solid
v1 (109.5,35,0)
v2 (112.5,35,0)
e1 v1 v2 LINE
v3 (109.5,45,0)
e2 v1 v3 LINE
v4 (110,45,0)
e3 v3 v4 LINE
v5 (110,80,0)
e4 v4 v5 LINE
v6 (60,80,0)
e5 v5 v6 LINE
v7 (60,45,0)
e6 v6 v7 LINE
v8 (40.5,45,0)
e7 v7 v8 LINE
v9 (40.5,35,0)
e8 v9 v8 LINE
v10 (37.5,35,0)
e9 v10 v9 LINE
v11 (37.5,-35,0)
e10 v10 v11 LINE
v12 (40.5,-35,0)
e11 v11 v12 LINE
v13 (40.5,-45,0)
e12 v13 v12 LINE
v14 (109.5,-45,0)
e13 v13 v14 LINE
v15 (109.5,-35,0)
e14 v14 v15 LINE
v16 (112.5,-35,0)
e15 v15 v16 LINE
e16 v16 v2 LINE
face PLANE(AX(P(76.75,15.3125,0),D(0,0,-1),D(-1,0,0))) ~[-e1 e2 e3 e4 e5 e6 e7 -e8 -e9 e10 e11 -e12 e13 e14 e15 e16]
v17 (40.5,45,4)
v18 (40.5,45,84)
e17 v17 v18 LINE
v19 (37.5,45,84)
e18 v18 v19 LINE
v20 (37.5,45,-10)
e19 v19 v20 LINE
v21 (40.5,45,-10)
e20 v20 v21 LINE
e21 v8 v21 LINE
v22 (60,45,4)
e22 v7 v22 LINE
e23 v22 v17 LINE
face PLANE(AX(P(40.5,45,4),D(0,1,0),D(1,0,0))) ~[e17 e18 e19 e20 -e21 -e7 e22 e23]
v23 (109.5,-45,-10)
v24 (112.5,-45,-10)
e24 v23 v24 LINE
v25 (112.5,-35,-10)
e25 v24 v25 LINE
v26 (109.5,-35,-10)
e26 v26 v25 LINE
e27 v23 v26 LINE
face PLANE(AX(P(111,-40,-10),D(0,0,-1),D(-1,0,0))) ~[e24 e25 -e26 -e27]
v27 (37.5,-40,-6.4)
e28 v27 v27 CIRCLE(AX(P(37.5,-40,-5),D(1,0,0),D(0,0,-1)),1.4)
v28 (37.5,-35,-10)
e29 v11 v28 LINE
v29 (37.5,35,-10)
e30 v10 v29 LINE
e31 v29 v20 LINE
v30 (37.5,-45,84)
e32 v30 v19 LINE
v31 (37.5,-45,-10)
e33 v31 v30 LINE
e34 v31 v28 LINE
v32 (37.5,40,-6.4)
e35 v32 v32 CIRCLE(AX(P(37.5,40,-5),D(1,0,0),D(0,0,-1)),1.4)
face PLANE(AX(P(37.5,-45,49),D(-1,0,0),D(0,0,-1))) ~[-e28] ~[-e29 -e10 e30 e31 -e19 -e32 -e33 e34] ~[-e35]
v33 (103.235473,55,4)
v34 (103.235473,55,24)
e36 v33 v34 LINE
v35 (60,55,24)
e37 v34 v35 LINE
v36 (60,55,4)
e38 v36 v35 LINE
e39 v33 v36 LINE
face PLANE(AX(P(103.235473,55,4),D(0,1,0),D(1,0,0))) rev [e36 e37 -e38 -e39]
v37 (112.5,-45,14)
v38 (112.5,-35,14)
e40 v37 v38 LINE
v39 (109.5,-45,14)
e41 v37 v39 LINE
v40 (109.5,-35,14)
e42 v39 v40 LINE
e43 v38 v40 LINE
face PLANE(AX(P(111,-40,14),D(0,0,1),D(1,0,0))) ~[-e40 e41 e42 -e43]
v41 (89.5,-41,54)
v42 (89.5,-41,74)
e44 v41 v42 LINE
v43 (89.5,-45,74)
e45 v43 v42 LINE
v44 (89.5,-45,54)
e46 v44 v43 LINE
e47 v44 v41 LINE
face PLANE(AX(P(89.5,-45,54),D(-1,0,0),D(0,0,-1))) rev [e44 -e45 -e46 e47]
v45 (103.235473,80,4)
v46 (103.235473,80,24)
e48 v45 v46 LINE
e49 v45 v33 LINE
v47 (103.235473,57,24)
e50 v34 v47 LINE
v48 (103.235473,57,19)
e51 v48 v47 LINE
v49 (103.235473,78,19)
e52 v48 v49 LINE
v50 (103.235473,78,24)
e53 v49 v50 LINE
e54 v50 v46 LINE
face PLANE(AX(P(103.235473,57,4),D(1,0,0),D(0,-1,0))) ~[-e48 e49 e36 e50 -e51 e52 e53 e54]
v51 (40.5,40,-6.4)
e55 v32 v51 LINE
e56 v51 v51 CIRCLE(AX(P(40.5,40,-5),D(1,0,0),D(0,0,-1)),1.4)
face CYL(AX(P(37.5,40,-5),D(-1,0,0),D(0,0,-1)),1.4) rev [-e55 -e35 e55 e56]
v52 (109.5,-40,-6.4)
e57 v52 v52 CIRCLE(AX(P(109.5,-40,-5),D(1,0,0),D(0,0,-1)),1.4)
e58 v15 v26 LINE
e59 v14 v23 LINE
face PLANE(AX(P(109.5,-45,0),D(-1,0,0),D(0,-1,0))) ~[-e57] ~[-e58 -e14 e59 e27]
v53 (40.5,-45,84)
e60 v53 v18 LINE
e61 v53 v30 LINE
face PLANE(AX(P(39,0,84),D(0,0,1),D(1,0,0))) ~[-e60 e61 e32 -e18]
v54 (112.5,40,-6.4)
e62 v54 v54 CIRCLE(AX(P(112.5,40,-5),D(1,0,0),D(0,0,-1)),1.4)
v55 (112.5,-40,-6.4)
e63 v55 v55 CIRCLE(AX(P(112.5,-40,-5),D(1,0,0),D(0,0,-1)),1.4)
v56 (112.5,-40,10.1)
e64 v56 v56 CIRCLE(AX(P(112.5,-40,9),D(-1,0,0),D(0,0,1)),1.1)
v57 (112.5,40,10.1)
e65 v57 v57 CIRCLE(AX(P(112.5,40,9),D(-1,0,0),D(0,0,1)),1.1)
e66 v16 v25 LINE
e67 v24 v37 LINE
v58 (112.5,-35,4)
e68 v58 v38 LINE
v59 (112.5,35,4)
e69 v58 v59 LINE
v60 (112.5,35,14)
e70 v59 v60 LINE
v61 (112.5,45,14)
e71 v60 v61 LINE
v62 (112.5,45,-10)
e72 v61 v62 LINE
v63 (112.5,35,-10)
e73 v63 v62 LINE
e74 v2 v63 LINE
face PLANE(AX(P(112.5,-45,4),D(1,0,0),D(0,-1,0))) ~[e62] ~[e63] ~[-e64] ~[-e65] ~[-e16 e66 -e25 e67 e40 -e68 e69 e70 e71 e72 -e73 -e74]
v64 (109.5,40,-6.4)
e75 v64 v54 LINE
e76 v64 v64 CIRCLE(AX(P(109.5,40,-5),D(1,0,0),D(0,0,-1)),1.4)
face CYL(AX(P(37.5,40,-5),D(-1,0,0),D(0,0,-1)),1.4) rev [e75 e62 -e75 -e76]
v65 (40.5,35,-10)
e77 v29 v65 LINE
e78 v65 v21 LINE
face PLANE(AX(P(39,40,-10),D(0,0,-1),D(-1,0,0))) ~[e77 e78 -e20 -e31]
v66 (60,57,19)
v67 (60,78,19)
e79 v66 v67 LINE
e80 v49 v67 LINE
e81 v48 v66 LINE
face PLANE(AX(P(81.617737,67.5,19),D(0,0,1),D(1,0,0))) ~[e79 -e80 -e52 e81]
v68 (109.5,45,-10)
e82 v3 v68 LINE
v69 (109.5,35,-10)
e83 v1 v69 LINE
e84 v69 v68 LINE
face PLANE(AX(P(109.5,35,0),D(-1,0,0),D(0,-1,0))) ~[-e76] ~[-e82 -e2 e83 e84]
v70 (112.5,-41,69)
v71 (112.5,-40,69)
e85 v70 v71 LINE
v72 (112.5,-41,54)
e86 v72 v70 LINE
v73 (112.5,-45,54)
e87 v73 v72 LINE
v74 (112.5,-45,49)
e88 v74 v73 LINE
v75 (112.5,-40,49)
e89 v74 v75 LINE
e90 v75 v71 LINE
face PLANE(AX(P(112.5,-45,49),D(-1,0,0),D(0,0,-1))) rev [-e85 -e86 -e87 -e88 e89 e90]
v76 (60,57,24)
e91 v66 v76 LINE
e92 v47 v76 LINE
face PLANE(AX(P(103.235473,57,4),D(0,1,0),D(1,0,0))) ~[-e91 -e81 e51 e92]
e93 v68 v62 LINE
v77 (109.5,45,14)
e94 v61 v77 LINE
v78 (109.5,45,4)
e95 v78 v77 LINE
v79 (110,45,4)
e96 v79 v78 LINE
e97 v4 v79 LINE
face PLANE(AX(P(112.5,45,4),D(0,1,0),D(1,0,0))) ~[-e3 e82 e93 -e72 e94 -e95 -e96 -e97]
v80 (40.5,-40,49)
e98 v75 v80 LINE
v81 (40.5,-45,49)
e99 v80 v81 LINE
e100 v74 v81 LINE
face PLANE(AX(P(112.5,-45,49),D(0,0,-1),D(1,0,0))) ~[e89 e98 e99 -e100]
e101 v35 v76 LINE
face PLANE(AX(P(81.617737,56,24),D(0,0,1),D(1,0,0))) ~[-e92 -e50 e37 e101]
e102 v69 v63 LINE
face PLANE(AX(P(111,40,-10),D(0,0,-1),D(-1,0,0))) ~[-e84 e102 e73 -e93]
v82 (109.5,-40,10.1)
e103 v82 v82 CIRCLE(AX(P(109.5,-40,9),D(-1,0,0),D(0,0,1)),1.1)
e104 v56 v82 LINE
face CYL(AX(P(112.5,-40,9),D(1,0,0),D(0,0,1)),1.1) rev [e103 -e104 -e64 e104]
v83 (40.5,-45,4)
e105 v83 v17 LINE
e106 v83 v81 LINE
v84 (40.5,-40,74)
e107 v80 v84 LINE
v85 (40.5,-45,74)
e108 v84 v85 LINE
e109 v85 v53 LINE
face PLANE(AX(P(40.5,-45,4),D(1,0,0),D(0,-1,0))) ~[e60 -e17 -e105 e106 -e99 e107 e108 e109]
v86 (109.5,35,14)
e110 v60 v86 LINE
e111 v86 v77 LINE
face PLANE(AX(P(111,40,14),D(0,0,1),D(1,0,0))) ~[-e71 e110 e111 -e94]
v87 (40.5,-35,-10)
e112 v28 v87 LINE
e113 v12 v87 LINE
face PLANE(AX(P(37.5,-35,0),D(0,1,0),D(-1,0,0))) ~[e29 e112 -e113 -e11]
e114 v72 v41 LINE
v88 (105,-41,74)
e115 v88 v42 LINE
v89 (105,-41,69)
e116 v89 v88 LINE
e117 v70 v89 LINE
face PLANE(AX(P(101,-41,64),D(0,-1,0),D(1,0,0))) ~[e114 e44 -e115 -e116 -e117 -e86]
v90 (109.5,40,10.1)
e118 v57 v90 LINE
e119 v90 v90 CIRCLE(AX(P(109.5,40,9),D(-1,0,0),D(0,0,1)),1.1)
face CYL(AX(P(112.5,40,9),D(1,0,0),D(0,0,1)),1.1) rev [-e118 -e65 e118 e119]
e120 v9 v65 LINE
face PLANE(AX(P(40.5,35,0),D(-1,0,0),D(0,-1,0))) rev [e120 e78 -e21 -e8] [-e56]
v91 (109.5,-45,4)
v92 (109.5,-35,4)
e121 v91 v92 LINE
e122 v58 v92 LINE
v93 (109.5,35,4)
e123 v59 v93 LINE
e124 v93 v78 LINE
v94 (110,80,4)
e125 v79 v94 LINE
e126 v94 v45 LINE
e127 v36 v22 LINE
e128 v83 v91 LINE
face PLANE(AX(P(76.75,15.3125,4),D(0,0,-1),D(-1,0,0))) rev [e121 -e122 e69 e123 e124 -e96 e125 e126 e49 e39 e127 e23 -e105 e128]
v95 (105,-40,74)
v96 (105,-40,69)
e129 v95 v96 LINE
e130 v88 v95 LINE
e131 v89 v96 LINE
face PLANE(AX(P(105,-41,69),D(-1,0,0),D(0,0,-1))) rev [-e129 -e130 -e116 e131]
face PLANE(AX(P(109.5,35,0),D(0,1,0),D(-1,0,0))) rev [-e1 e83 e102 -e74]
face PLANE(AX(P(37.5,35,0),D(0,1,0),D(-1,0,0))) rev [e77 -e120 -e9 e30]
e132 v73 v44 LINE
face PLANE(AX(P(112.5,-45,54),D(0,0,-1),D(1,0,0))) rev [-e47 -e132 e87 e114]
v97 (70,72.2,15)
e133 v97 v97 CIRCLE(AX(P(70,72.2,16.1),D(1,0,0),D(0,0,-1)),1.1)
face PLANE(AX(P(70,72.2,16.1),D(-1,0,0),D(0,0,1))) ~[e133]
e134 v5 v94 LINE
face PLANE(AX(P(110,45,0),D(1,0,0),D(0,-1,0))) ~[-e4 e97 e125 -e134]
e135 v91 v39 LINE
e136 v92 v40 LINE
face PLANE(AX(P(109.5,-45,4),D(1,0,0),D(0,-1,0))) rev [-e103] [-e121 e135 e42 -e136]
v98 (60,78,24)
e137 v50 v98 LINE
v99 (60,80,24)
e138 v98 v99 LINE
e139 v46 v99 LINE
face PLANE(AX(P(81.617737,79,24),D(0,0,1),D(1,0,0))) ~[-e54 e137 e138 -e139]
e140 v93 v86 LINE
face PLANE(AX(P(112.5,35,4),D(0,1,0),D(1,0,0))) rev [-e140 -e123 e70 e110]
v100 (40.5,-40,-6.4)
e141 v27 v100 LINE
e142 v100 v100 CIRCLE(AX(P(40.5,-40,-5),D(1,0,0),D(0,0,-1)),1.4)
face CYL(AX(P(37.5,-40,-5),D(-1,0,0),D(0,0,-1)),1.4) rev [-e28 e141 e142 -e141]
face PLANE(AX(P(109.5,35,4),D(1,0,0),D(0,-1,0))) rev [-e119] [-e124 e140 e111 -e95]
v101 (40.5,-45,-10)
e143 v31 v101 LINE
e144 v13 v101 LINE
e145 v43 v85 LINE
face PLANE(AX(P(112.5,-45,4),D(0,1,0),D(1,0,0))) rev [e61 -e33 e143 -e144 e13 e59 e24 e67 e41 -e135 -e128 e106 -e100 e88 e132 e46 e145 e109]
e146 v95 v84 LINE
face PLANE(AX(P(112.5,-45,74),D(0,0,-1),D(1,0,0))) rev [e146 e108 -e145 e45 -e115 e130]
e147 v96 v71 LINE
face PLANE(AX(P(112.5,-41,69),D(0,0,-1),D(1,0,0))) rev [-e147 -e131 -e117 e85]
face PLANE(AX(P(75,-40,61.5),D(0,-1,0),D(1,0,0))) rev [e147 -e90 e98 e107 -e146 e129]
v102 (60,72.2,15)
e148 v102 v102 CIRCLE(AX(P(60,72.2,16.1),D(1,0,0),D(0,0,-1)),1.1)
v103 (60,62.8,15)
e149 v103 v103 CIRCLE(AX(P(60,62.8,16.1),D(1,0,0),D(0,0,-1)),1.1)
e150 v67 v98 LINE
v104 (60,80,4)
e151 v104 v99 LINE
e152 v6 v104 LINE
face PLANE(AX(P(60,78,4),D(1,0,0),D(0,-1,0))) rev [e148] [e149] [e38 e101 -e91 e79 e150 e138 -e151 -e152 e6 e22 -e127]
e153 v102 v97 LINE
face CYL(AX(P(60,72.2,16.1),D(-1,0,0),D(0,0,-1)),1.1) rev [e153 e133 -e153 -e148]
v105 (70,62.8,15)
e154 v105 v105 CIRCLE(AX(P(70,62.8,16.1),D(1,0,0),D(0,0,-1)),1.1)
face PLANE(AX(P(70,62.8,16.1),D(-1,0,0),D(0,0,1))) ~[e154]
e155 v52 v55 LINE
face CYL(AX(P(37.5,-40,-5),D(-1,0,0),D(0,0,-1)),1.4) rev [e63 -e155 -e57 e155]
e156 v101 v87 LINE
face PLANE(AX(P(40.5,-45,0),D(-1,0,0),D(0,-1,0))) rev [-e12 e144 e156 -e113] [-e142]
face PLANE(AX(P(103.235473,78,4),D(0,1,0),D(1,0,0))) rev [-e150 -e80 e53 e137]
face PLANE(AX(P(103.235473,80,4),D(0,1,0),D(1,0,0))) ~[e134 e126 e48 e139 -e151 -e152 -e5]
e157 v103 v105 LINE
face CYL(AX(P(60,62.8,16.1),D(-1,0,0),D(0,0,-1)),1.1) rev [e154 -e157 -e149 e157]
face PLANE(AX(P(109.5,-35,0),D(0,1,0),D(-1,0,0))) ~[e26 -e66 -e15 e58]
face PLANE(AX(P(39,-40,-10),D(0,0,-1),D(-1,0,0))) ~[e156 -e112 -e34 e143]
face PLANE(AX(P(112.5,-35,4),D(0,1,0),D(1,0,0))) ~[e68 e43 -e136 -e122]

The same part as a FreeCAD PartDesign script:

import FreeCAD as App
import Part
import Sketcher
Q = App.Units.Quantity

doc = App.newDocument("Part")
body = doc.addObject("PartDesign::Body", "Body")

# Sketch on XY plane
sketch1 = doc.addObject("Sketcher::SketchObject", "Sketch")
body.addObject(sketch1)
sketch1.AttachmentSupport = (doc.XY_Plane, [""])
sketch1.MapMode = "FlatFace"
sketch1.addGeometry([
    Part.LineSegment(App.Vector(-35, 45, 0), App.Vector(-37.5, 45, 0)),  # 0
    Part.LineSegment(App.Vector(-37.5, 45, 0), App.Vector(-37.5, -45, 0)),  # 1
    Part.LineSegment(App.Vector(-37.5, -45, 0), App.Vector(37.5, -45, 0)),  # 2
    Part.LineSegment(App.Vector(37.5, -45, 0), App.Vector(37.5, 45, 0)),  # 3
    Part.LineSegment(App.Vector(37.5, 45, 0), App.Vector(15, 45, 0)),  # 4
    Part.LineSegment(App.Vector(15, 45, 0), App.Vector(15, 80, 0)),  # 5
    Part.LineSegment(App.Vector(15, 80, 0), App.Vector(-35, 80, 0)),  # 6
    Part.LineSegment(App.Vector(-35, 80, 0), App.Vector(-35, 45, 0)),  # 7
], False)
sketch1.addConstraint([
    Sketcher.Constraint("Coincident", 0, 2, 1, 1),
    Sketcher.Constraint("Coincident", 1, 2, 2, 1),
    Sketcher.Constraint("Coincident", 2, 2, 3, 1),
    Sketcher.Constraint("Coincident", 3, 2, 4, 1),
    Sketcher.Constraint("Coincident", 4, 2, 5, 1),
    Sketcher.Constraint("Coincident", 5, 2, 6, 1),
    Sketcher.Constraint("Coincident", 6, 2, 7, 1),
    Sketcher.Constraint("Coincident", 7, 2, 0, 1),
    Sketcher.Constraint("Horizontal", 0),
    Sketcher.Constraint("Vertical", 1),
    Sketcher.Constraint("Horizontal", 2),
    Sketcher.Constraint("Vertical", 3),
    Sketcher.Constraint("Horizontal", 4),
    Sketcher.Constraint("Vertical", 5),
    Sketcher.Constraint("Horizontal", 6),
    Sketcher.Constraint("Vertical", 7),
    Sketcher.Constraint("Symmetric", 0, 2, 2, 2, -1, 1),
    Sketcher.Constraint("Horizontal", 0, 2, 3, 2),
    Sketcher.Constraint("DistanceX", 2, 1, 2, 2, Q("75 mm")),
    Sketcher.Constraint("DistanceX", 6, 2, 6, 1, Q("50 mm")),
    Sketcher.Constraint("DistanceY", 1, 2, 1, 1, Q("90 mm")),
    Sketcher.Constraint("DistanceY", 5, 1, 5, 2, Q("35 mm")),
    Sketcher.Constraint("DistanceX", 0, 2, 0, 1, Q("2.5 mm")),
])
pad1 = doc.addObject("PartDesign::Pad", "Pad")
body.addObject(pad1)
pad1.Profile = sketch1
pad1.Length = 4

# Sketch on XY plane
sketch2 = doc.addObject("Sketcher::SketchObject", "Sketch001")
body.addObject(sketch2)
sketch2.AttachmentSupport = (doc.XY_Plane, [""])
sketch2.MapMode = "FlatFace"
sketch2.AttachmentOffset = App.Placement(App.Vector(0, 0, 4), App.Rotation())
sketch2.addGeometry([
    Part.LineSegment(App.Vector(-28.235473, 57, 0), App.Vector(-28.235473, 55, 0)),  # 0
    Part.LineSegment(App.Vector(-28.235473, 55, 0), App.Vector(15, 55, 0)),  # 1
    Part.LineSegment(App.Vector(15, 55, 0), App.Vector(15, 57, 0)),  # 2
    Part.LineSegment(App.Vector(15, 57, 0), App.Vector(-28.235473, 57, 0)),  # 3
    Part.LineSegment(App.Vector(-28.235473, 80, 0), App.Vector(-28.235473, 78, 0)),  # 4
    Part.LineSegment(App.Vector(-28.235473, 78, 0), App.Vector(15, 78, 0)),  # 5
    Part.LineSegment(App.Vector(15, 78, 0), App.Vector(15, 80, 0)),  # 6
    Part.LineSegment(App.Vector(15, 80, 0), App.Vector(-28.235473, 80, 0)),  # 7
], False)
sketch2.addConstraint([
    Sketcher.Constraint("Coincident", 0, 2, 1, 1),
    Sketcher.Constraint("Coincident", 1, 2, 2, 1),
    Sketcher.Constraint("Coincident", 2, 2, 3, 1),
    Sketcher.Constraint("Coincident", 3, 2, 0, 1),
    Sketcher.Constraint("Coincident", 4, 2, 5, 1),
    Sketcher.Constraint("Coincident", 5, 2, 6, 1),
    Sketcher.Constraint("Coincident", 6, 2, 7, 1),
    Sketcher.Constraint("Coincident", 7, 2, 4, 1),
    Sketcher.Constraint("Vertical", 0),
    Sketcher.Constraint("Horizontal", 1),
    Sketcher.Constraint("Vertical", 2),
    Sketcher.Constraint("Horizontal", 3),
    Sketcher.Constraint("Vertical", 4),
    Sketcher.Constraint("Horizontal", 5),
    Sketcher.Constraint("Vertical", 6),
    Sketcher.Constraint("Horizontal", 7),
    Sketcher.Constraint("Vertical", 3, 2, 4, 2),
    Sketcher.Constraint("Vertical", 2, 2, 5, 2),
    Sketcher.Constraint("Equal", 2, 4),
    Sketcher.Constraint("DistanceY", 0, 2, 0, 1, Q("2 mm")),
    Sketcher.Constraint("DistanceY", -1, 1, 0, 2, Q("55 mm")),
    Sketcher.Constraint("DistanceX", -1, 1, 1, 2, Q("15 mm")),
    Sketcher.Constraint("DistanceY", -1, 1, 4, 2, Q("78 mm")),
    Sketcher.Constraint("DistanceX", 1, 1, 1, 2, Q("43.235473 mm")),
])
pad2 = doc.addObject("PartDesign::Pad", "Pad001")
body.addObject(pad2)
pad2.Profile = sketch2
pad2.Length = 20

# Sketch on XY plane
sketch3 = doc.addObject("Sketcher::SketchObject", "Sketch002")
body.addObject(sketch3)
sketch3.AttachmentSupport = (doc.XY_Plane, [""])
sketch3.MapMode = "FlatFace"
sketch3.AttachmentOffset = App.Placement(App.Vector(0, 0, 4), App.Rotation())
sketch3.addGeometry([
    Part.LineSegment(App.Vector(-28.235473, 78, 0), App.Vector(-28.235473, 57, 0)),
    Part.LineSegment(App.Vector(-28.235473, 57, 0), App.Vector(15, 57, 0)),
    Part.LineSegment(App.Vector(15, 57, 0), App.Vector(15, 78, 0)),
    Part.LineSegment(App.Vector(15, 78, 0), App.Vector(-28.235473, 78, 0)),
], False)
sketch3.addConstraint([
    Sketcher.Constraint("Coincident", 0, 2, 1, 1),
    Sketcher.Constraint("Coincident", 1, 2, 2, 1),
    Sketcher.Constraint("Coincident", 2, 2, 3, 1),
    Sketcher.Constraint("Coincident", 3, 2, 0, 1),
    Sketcher.Constraint("Vertical", 0),
    Sketcher.Constraint("Horizontal", 1),
    Sketcher.Constraint("Vertical", 2),
    Sketcher.Constraint("Horizontal", 3),
    Sketcher.Constraint("DistanceY", 0, 2, 0, 1, Q("21 mm")),
    Sketcher.Constraint("DistanceY", -1, 1, 0, 2, Q("57 mm")),
    Sketcher.Constraint("DistanceX", -1, 1, 1, 2, Q("15 mm")),
    Sketcher.Constraint("DistanceX", 1, 1, 1, 2, Q("43.235473 mm")),
])
pad3 = doc.addObject("PartDesign::Pad", "Pad002")
body.addObject(pad3)
pad3.Profile = sketch3
pad3.Length = 15

# Sketch on XY plane
sketch4 = doc.addObject("Sketcher::SketchObject", "Sketch003")
body.addObject(sketch4)
sketch4.AttachmentSupport = (doc.XY_Plane, [""])
sketch4.MapMode = "FlatFace"
sketch4.addGeometry([
    Part.LineSegment(App.Vector(37.5, 45, 0), App.Vector(37.5, 35, 0)),  # 0
    Part.LineSegment(App.Vector(37.5, 35, 0), App.Vector(34.5, 35, 0)),  # 1
    Part.LineSegment(App.Vector(34.5, 35, 0), App.Vector(34.5, 45, 0)),  # 2
    Part.LineSegment(App.Vector(34.5, 45, 0), App.Vector(37.5, 45, 0)),  # 3
    Part.LineSegment(App.Vector(-34.5, 45, 0), App.Vector(-34.5, 35, 0)),  # 4
    Part.LineSegment(App.Vector(-34.5, 35, 0), App.Vector(-37.5, 35, 0)),  # 5
    Part.LineSegment(App.Vector(-37.5, 35, 0), App.Vector(-37.5, 45, 0)),  # 6
    Part.LineSegment(App.Vector(-37.5, 45, 0), App.Vector(-34.5, 45, 0)),  # 7
    Part.LineSegment(App.Vector(-34.5, -35, 0), App.Vector(-34.5, -45, 0)),  # 8
    Part.LineSegment(App.Vector(-34.5, -45, 0), App.Vector(-37.5, -45, 0)),  # 9
    Part.LineSegment(App.Vector(-37.5, -45, 0), App.Vector(-37.5, -35, 0)),  # 10
    Part.LineSegment(App.Vector(-37.5, -35, 0), App.Vector(-34.5, -35, 0)),  # 11
    Part.LineSegment(App.Vector(37.5, -35, 0), App.Vector(37.5, -45, 0)),  # 12
    Part.LineSegment(App.Vector(37.5, -45, 0), App.Vector(34.5, -45, 0)),  # 13
    Part.LineSegment(App.Vector(34.5, -45, 0), App.Vector(34.5, -35, 0)),  # 14
    Part.LineSegment(App.Vector(34.5, -35, 0), App.Vector(37.5, -35, 0)),  # 15
], False)
sketch4.addConstraint([
    Sketcher.Constraint("Coincident", 0, 2, 1, 1),
    Sketcher.Constraint("Coincident", 1, 2, 2, 1),
    Sketcher.Constraint("Coincident", 2, 2, 3, 1),
    Sketcher.Constraint("Coincident", 3, 2, 0, 1),
    Sketcher.Constraint("Coincident", 4, 2, 5, 1),
    Sketcher.Constraint("Coincident", 5, 2, 6, 1),
    Sketcher.Constraint("Coincident", 6, 2, 7, 1),
    Sketcher.Constraint("Coincident", 7, 2, 4, 1),
    Sketcher.Constraint("Coincident", 8, 2, 9, 1),
    Sketcher.Constraint("Coincident", 9, 2, 10, 1),
    Sketcher.Constraint("Coincident", 10, 2, 11, 1),
    Sketcher.Constraint("Coincident", 11, 2, 8, 1),
    Sketcher.Constraint("Coincident", 12, 2, 13, 1),
    Sketcher.Constraint("Coincident", 13, 2, 14, 1),
    Sketcher.Constraint("Coincident", 14, 2, 15, 1),
    Sketcher.Constraint("Coincident", 15, 2, 12, 1),
    Sketcher.Constraint("Vertical", 0),
    Sketcher.Constraint("Horizontal", 1),
    Sketcher.Constraint("Vertical", 2),
    Sketcher.Constraint("Horizontal", 3),
    Sketcher.Constraint("Vertical", 4),
    Sketcher.Constraint("Horizontal", 5),
    Sketcher.Constraint("Vertical", 6),
    Sketcher.Constraint("Horizontal", 7),
    Sketcher.Constraint("Vertical", 8),
    Sketcher.Constraint("Horizontal", 9),
    Sketcher.Constraint("Vertical", 10),
    Sketcher.Constraint("Horizontal", 11),
    Sketcher.Constraint("Vertical", 12),
    Sketcher.Constraint("Horizontal", 13),
    Sketcher.Constraint("Vertical", 14),
    Sketcher.Constraint("Horizontal", 15),
    Sketcher.Constraint("Symmetric", 2, 2, 8, 2, -1, 1),
    Sketcher.Constraint("Symmetric", 0, 2, 10, 2, -1, 1),
    Sketcher.Constraint("Symmetric", 6, 2, 12, 2, -1, 1),
    Sketcher.Constraint("Symmetric", 4, 2, 14, 2, -1, 1),
    Sketcher.Constraint("Symmetric", 1, 2, 4, 2, -2),
    Sketcher.Constraint("Symmetric", 3, 2, 6, 2, -2),
    Sketcher.Constraint("DistanceX", 1, 2, 1, 1, Q("3 mm")),
    Sketcher.Constraint("DistanceY", 0, 2, 0, 1, Q("10 mm")),
    Sketcher.Constraint("DistanceY", -1, 1, 0, 2, Q("35 mm")),
    Sketcher.Constraint("DistanceX", 4, 2, 1, 2, Q("69 mm")),
])
pad4 = doc.addObject("PartDesign::Pad", "Pad003")
body.addObject(pad4)
pad4.Profile = sketch4
pad4.Length = 10
pad4.Reversed = True

# Sketch on YZ plane
sketch5 = doc.addObject("Sketcher::SketchObject", "Sketch004")
body.addObject(sketch5)
sketch5.AttachmentSupport = (doc.YZ_Plane, [""])
sketch5.MapMode = "FlatFace"
sketch5.AttachmentOffset = App.Placement(App.Vector(0, 0, 37.5), App.Rotation())
sketch5.addGeometry([
    Part.Circle(App.Vector(40, -5, 0), App.Vector(0, 0, 1), 1.4),
    Part.Circle(App.Vector(-40, -5, 0), App.Vector(0, 0, 1), 1.4),
], False)
sketch5.addConstraint([
    Sketcher.Constraint("Equal", 0, 1),
    Sketcher.Constraint("Symmetric", 0, 3, 1, 3, -2),
    Sketcher.Constraint("Diameter", 0, Q("2.8 mm")),
    Sketcher.Constraint("DistanceX", -1, 1, 0, 3, Q("40 mm")),
    Sketcher.Constraint("DistanceY", 0, 3, -1, 1, Q("5 mm")),
])
pocket1 = doc.addObject("PartDesign::Pocket", "Pocket")
body.addObject(pocket1)
pocket1.Profile = sketch5
pocket1.Length = 83

# Sketch on XY plane
sketch6 = doc.addObject("Sketcher::SketchObject", "Sketch005")
body.addObject(sketch6)
sketch6.AttachmentSupport = (doc.XY_Plane, [""])
sketch6.MapMode = "FlatFace"
sketch6.AttachmentOffset = App.Placement(App.Vector(0, 0, 4), App.Rotation())
sketch6.addGeometry([
    Part.LineSegment(App.Vector(34.5, 45, 0), App.Vector(34.5, -45, 0)),
    Part.LineSegment(App.Vector(34.5, -45, 0), App.Vector(37.5, -45, 0)),
    Part.LineSegment(App.Vector(37.5, -45, 0), App.Vector(37.5, 45, 0)),
    Part.LineSegment(App.Vector(37.5, 45, 0), App.Vector(34.5, 45, 0)),
], False)
sketch6.addConstraint([
    Sketcher.Constraint("Coincident", 0, 2, 1, 1),
    Sketcher.Constraint("Coincident", 1, 2, 2, 1),
    Sketcher.Constraint("Coincident", 2, 2, 3, 1),
    Sketcher.Constraint("Coincident", 3, 2, 0, 1),
    Sketcher.Constraint("Vertical", 0),
    Sketcher.Constraint("Horizontal", 1),
    Sketcher.Constraint("Vertical", 2),
    Sketcher.Constraint("Horizontal", 3),
    Sketcher.Constraint("DistanceX", 1, 1, 1, 2, Q("3 mm")),
    Sketcher.Constraint("DistanceY", 0, 2, 0, 1, Q("90 mm")),
    Sketcher.Constraint("DistanceY", 0, 2, -1, 1, Q("45 mm")),
    Sketcher.Constraint("DistanceX", -1, 1, 0, 2, Q("34.5 mm")),
])
pad5 = doc.addObject("PartDesign::Pad", "Pad004")
body.addObject(pad5)
pad5.Profile = sketch6
pad5.Length = 80

# Sketch on XZ plane
sketch7 = doc.addObject("Sketcher::SketchObject", "Sketch006")
body.addObject(sketch7)
sketch7.AttachmentSupport = (doc.XZ_Plane, [""])
sketch7.MapMode = "FlatFace"
sketch7.AttachmentOffset = App.Placement(App.Vector(0, 0, 45), App.Rotation())
sketch7.addGeometry([
    Part.LineSegment(App.Vector(-37.5, 74, 0), App.Vector(-37.5, 49, 0)),
    Part.LineSegment(App.Vector(-37.5, 49, 0), App.Vector(37.5, 49, 0)),
    Part.LineSegment(App.Vector(37.5, 49, 0), App.Vector(37.5, 74, 0)),
    Part.LineSegment(App.Vector(37.5, 74, 0), App.Vector(-37.5, 74, 0)),
], False)
sketch7.addConstraint([
    Sketcher.Constraint("Coincident", 0, 2, 1, 1),
    Sketcher.Constraint("Coincident", 1, 2, 2, 1),
    Sketcher.Constraint("Coincident", 2, 2, 3, 1),
    Sketcher.Constraint("Coincident", 3, 2, 0, 1),
    Sketcher.Constraint("Vertical", 0),
    Sketcher.Constraint("Horizontal", 1),
    Sketcher.Constraint("Vertical", 2),
    Sketcher.Constraint("Horizontal", 3),
    Sketcher.Constraint("DistanceX", 1, 1, 1, 2, Q("75 mm")),
    Sketcher.Constraint("DistanceY", 0, 2, 0, 1, Q("25 mm")),
    Sketcher.Constraint("DistanceY", -1, 1, 0, 2, Q("49 mm")),
    Sketcher.Constraint("DistanceX", 0, 2, -1, 1, Q("37.5 mm")),
])
pad6 = doc.addObject("PartDesign::Pad", "Pad005")
body.addObject(pad6)
pad6.Profile = sketch7
pad6.Length = 5
pad6.Reversed = True

# Sketch on XZ plane
sketch8 = doc.addObject("Sketcher::SketchObject", "Sketch007")
body.addObject(sketch8)
sketch8.AttachmentSupport = (doc.XZ_Plane, [""])
sketch8.MapMode = "FlatFace"
sketch8.AttachmentOffset = App.Placement(App.Vector(0, 0, 45), App.Rotation())
sketch8.addGeometry([
    Part.LineSegment(App.Vector(-37.5, 74, 0), App.Vector(-37.5, 54, 0)),
    Part.LineSegment(App.Vector(-37.5, 54, 0), App.Vector(-14.5, 54, 0)),
    Part.LineSegment(App.Vector(-14.5, 54, 0), App.Vector(-14.5, 74, 0)),
    Part.LineSegment(App.Vector(-14.5, 74, 0), App.Vector(-37.5, 74, 0)),
], False)
sketch8.addConstraint([
    Sketcher.Constraint("Coincident", 0, 2, 1, 1),
    Sketcher.Constraint("Coincident", 1, 2, 2, 1),
    Sketcher.Constraint("Coincident", 2, 2, 3, 1),
    Sketcher.Constraint("Coincident", 3, 2, 0, 1),
    Sketcher.Constraint("Vertical", 0),
    Sketcher.Constraint("Horizontal", 1),
    Sketcher.Constraint("Vertical", 2),
    Sketcher.Constraint("Horizontal", 3),
    Sketcher.Constraint("DistanceX", 1, 1, 1, 2, Q("23 mm")),
    Sketcher.Constraint("DistanceY", 0, 2, 0, 1, Q("20 mm")),
    Sketcher.Constraint("DistanceY", -1, 1, 0, 2, Q("54 mm")),
    Sketcher.Constraint("DistanceX", 0, 2, -1, 1, Q("37.5 mm")),
])
pocket2 = doc.addObject("PartDesign::Pocket", "Pocket001")
body.addObject(pocket2)
pocket2.Profile = sketch8
pocket2.Length = 4

# Sketch on XZ plane
sketch9 = doc.addObject("Sketcher::SketchObject", "Sketch008")
body.addObject(sketch9)
sketch9.AttachmentSupport = (doc.XZ_Plane, [""])
sketch9.MapMode = "FlatFace"
sketch9.AttachmentOffset = App.Placement(App.Vector(0, 0, 41), App.Rotation())
sketch9.addGeometry([
    Part.LineSegment(App.Vector(-37.5, 74, 0), App.Vector(-37.5, 69, 0)),
    Part.LineSegment(App.Vector(-37.5, 69, 0), App.Vector(-30, 69, 0)),
    Part.LineSegment(App.Vector(-30, 69, 0), App.Vector(-30, 74, 0)),
    Part.LineSegment(App.Vector(-30, 74, 0), App.Vector(-37.5, 74, 0)),
], False)
sketch9.addConstraint([
    Sketcher.Constraint("Coincident", 0, 2, 1, 1),
    Sketcher.Constraint("Coincident", 1, 2, 2, 1),
    Sketcher.Constraint("Coincident", 2, 2, 3, 1),
    Sketcher.Constraint("Coincident", 3, 2, 0, 1),
    Sketcher.Constraint("Vertical", 0),
    Sketcher.Constraint("Horizontal", 1),
    Sketcher.Constraint("Vertical", 2),
    Sketcher.Constraint("Horizontal", 3),
    Sketcher.Constraint("DistanceY", 0, 2, 0, 1, Q("5 mm")),
    Sketcher.Constraint("DistanceX", 1, 1, 1, 2, Q("7.5 mm")),
    Sketcher.Constraint("DistanceY", -1, 1, 0, 2, Q("69 mm")),
    Sketcher.Constraint("DistanceX", 1, 2, -1, 1, Q("30 mm")),
])
pocket3 = doc.addObject("PartDesign::Pocket", "Pocket002")
body.addObject(pocket3)
pocket3.Profile = sketch9
pocket3.Type = "UpToFirst"

# Sketch on YZ plane
sketch10 = doc.addObject("Sketcher::SketchObject", "Sketch009")
body.addObject(sketch10)
sketch10.AttachmentSupport = (doc.YZ_Plane, [""])
sketch10.MapMode = "FlatFace"
sketch10.AttachmentOffset = App.Placement(App.Vector(0, 0, 15), App.Rotation())
sketch10.addGeometry([
    Part.Circle(App.Vector(72.2, 16.1, 0), App.Vector(0, 0, 1), 1.1),
    Part.Circle(App.Vector(62.8, 16.1, 0), App.Vector(0, 0, 1), 1.1),
], False)
sketch10.addConstraint([
    Sketcher.Constraint("Equal", 0, 1),
    Sketcher.Constraint("Horizontal", 0, 3, 1, 3),
    Sketcher.Constraint("Diameter", 0, Q("2.2 mm")),
    Sketcher.Constraint("DistanceX", -1, 1, 0, 3, Q("72.2 mm")),
    Sketcher.Constraint("DistanceY", -1, 1, 0, 3, Q("16.1 mm")),
    Sketcher.Constraint("DistanceX", -1, 1, 1, 3, Q("62.8 mm")),
])
pocket4 = doc.addObject("PartDesign::Pocket", "Pocket003")
body.addObject(pocket4)
pocket4.Profile = sketch10
pocket4.Length = 10

# Sketch on XY plane
sketch11 = doc.addObject("Sketcher::SketchObject", "Sketch010")
body.addObject(sketch11)
sketch11.AttachmentSupport = (doc.XY_Plane, [""])
sketch11.MapMode = "FlatFace"
sketch11.AttachmentOffset = App.Placement(App.Vector(0, 0, 4), App.Rotation())
sketch11.addGeometry([
    Part.LineSegment(App.Vector(-37.5, 45, 0), App.Vector(-37.5, 35, 0)),
    Part.LineSegment(App.Vector(-37.5, 35, 0), App.Vector(-34.5, 35, 0)),
    Part.LineSegment(App.Vector(-34.5, 35, 0), App.Vector(-34.5, 45, 0)),
    Part.LineSegment(App.Vector(-34.5, 45, 0), App.Vector(-37.5, 45, 0)),
], False)
sketch11.addConstraint([
    Sketcher.Constraint("Coincident", 0, 2, 1, 1),
    Sketcher.Constraint("Coincident", 1, 2, 2, 1),
    Sketcher.Constraint("Coincident", 2, 2, 3, 1),
    Sketcher.Constraint("Coincident", 3, 2, 0, 1),
    Sketcher.Constraint("Vertical", 0),
    Sketcher.Constraint("Horizontal", 1),
    Sketcher.Constraint("Vertical", 2),
    Sketcher.Constraint("Horizontal", 3),
    Sketcher.Constraint("DistanceX", 1, 1, 1, 2, Q("3 mm")),
    Sketcher.Constraint("DistanceY", 0, 2, 0, 1, Q("10 mm")),
    Sketcher.Constraint("DistanceY", -1, 1, 0, 2, Q("35 mm")),
    Sketcher.Constraint("DistanceX", 0, 2, -1, 1, Q("37.5 mm")),
])
pad7 = doc.addObject("PartDesign::Pad", "Pad006")
body.addObject(pad7)
pad7.Profile = sketch11
pad7.Length = 10

# Sketch on YZ plane
sketch12 = doc.addObject("Sketcher::SketchObject", "Sketch011")
body.addObject(sketch12)
sketch12.AttachmentSupport = (doc.YZ_Plane, [""])
sketch12.MapMode = "FlatFace"
sketch12.AttachmentOffset = App.Placement(App.Vector(0, 0, -37.5), App.Rotation())
sketch12.addGeometry(Part.Circle(App.Vector(40, 9, 0), App.Vector(0, 0, 1), 1.1), False)
sketch12.addConstraint([
    Sketcher.Constraint("Diameter", 0, Q("2.2 mm")),
    Sketcher.Constraint("DistanceX", -1, 1, 0, 3, Q("40 mm")),
    Sketcher.Constraint("DistanceY", -1, 1, 0, 3, Q("9 mm")),
])
pocket5 = doc.addObject("PartDesign::Pocket", "Pocket004")
body.addObject(pocket5)
pocket5.Profile = sketch12
pocket5.Length = 3
pocket5.Reversed = True

# Sketch on XY plane
sketch13 = doc.addObject("Sketcher::SketchObject", "Sketch012")
body.addObject(sketch13)
sketch13.AttachmentSupport = (doc.XY_Plane, [""])
sketch13.MapMode = "FlatFace"
sketch13.AttachmentOffset = App.Placement(App.Vector(0, 0, 4), App.Rotation())
sketch13.addGeometry([
    Part.LineSegment(App.Vector(-37.5, -35, 0), App.Vector(-37.5, -45, 0)),
    Part.LineSegment(App.Vector(-37.5, -45, 0), App.Vector(-34.5, -45, 0)),
    Part.LineSegment(App.Vector(-34.5, -45, 0), App.Vector(-34.5, -35, 0)),
    Part.LineSegment(App.Vector(-34.5, -35, 0), App.Vector(-37.5, -35, 0)),
], False)
sketch13.addConstraint([
    Sketcher.Constraint("Coincident", 0, 2, 1, 1),
    Sketcher.Constraint("Coincident", 1, 2, 2, 1),
    Sketcher.Constraint("Coincident", 2, 2, 3, 1),
    Sketcher.Constraint("Coincident", 3, 2, 0, 1),
    Sketcher.Constraint("Vertical", 0),
    Sketcher.Constraint("Horizontal", 1),
    Sketcher.Constraint("Vertical", 2),
    Sketcher.Constraint("Horizontal", 3),
    Sketcher.Constraint("DistanceX", 1, 1, 1, 2, Q("3 mm")),
    Sketcher.Constraint("DistanceY", 0, 2, 0, 1, Q("10 mm")),
    Sketcher.Constraint("DistanceY", 0, 2, -1, 1, Q("45 mm")),
    Sketcher.Constraint("DistanceX", 0, 2, -1, 1, Q("37.5 mm")),
])
pad8 = doc.addObject("PartDesign::Pad", "Pad007")
body.addObject(pad8)
pad8.Profile = sketch13
pad8.Length = 10

# Sketch on YZ plane
sketch14 = doc.addObject("Sketcher::SketchObject", "Sketch013")
body.addObject(sketch14)
sketch14.AttachmentSupport = (doc.YZ_Plane, [""])
sketch14.MapMode = "FlatFace"
sketch14.AttachmentOffset = App.Placement(App.Vector(0, 0, -37.5), App.Rotation())
sketch14.addGeometry(Part.Circle(App.Vector(-40, 9, 0), App.Vector(0, 0, 1), 1.1), False)
sketch14.addConstraint([
    Sketcher.Constraint("Diameter", 0, Q("2.2 mm")),
    Sketcher.Constraint("DistanceX", 0, 3, -1, 1, Q("40 mm")),
    Sketcher.Constraint("DistanceY", -1, 1, 0, 3, Q("9 mm")),
])
pocket6 = doc.addObject("PartDesign::Pocket", "Pocket005")
body.addObject(pocket6)
pocket6.Profile = sketch14
pocket6.Length = 3
pocket6.Reversed = True
body2 = doc.addObject("PartDesign::Body", "Body001")
doc.recompute()

mirroring = doc.addObject("Part::Mirroring", "Mirroring")
mirroring.Source = body
mirroring.Base = App.Vector(37.5, 0, 4)
mirroring.Normal = App.Vector(1, 0, 0)
body2.BaseFeature = mirroring
doc.recompute()
body.Visibility = False
mirroring.Visibility = False

doc.recompute()
